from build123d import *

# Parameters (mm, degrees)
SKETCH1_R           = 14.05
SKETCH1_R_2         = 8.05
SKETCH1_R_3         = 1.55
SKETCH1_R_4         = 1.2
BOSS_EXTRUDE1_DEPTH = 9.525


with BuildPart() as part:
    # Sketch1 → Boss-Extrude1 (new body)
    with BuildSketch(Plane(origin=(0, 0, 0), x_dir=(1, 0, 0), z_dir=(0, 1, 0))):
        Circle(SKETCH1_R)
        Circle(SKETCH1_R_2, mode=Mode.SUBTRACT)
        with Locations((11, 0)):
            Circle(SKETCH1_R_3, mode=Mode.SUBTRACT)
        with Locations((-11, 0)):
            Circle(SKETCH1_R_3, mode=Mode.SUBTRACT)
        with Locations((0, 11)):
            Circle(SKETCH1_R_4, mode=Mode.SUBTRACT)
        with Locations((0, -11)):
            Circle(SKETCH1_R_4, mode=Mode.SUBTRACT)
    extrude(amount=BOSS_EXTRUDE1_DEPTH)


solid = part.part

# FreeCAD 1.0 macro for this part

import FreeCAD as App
import Part
import Sketcher
from FreeCAD import Vector
Q = App.Units.Quantity

doc = App.newDocument("Part")
body = doc.addObject("PartDesign::Body", "Body")

# Sketch on XZ plane
sketch1 = body.newObject("Sketcher::SketchObject", "Sketch")
sketch1.AttachmentSupport = (doc.getObject("XZ_Plane"), [""])
sketch1.MapMode = "FlatFace"
sketch1.addGeometry(Part.Circle(Vector(0, 0, 0), Vector(0, 0, 1), 14.1), False)
sketch1.addGeometry(Part.Circle(Vector(0, 11, 0), Vector(0, 0, 1), 1.2), False)
sketch1.addGeometry(Part.Circle(Vector(-11, 0, 0), Vector(0, 0, 1), 1.6), False)
sketch1.addGeometry(Part.Circle(Vector(0, 0, 0), Vector(0, 0, 1), 8.1), False)
sketch1.addGeometry(Part.Circle(Vector(11, 0, 0), Vector(0, 0, 1), 1.6), False)
sketch1.addGeometry(Part.Circle(Vector(0, -11, 0), Vector(0, 0, 1), 1.2), False)
sketch1.addConstraint(Sketcher.Constraint("Coincident", 0, 3, -1, 1))
sketch1.addConstraint(Sketcher.Constraint("Coincident", 3, 3, -1, 1))
sketch1.addConstraint(Sketcher.Constraint("Equal", 2, 4))
sketch1.addConstraint(Sketcher.Constraint("Equal", 1, 5))
sketch1.addConstraint(Sketcher.Constraint("Symmetric", 2, 3, 4, 3, -1, 1))
sketch1.addConstraint(Sketcher.Constraint("Symmetric", 1, 3, 5, 3, -1, 1))
sketch1.addConstraint(Sketcher.Constraint("PointOnObject", 1, 3, -2))
sketch1.addConstraint(Sketcher.Constraint("PointOnObject", 2, 3, -1))
sketch1.addConstraint(Sketcher.Constraint("Diameter", 0, Q("28.1 mm")))
sketch1.addConstraint(Sketcher.Constraint("Diameter", 1, Q("2.4 mm")))
sketch1.addConstraint(Sketcher.Constraint("Diameter", 2, Q("3.1 mm")))
sketch1.addConstraint(Sketcher.Constraint("Diameter", 3, Q("16.1 mm")))
sketch1.addConstraint(Sketcher.Constraint("DistanceY", -1, 1, 1, 3, Q("11 mm")))
sketch1.addConstraint(Sketcher.Constraint("DistanceX", 2, 3, -1, 1, Q("11 mm")))
pad1 = body.newObject("PartDesign::Pad", "Pad")
pad1.Profile = sketch1
pad1.Length = 9.525
pad1.Reversed = True

doc.recompute()
